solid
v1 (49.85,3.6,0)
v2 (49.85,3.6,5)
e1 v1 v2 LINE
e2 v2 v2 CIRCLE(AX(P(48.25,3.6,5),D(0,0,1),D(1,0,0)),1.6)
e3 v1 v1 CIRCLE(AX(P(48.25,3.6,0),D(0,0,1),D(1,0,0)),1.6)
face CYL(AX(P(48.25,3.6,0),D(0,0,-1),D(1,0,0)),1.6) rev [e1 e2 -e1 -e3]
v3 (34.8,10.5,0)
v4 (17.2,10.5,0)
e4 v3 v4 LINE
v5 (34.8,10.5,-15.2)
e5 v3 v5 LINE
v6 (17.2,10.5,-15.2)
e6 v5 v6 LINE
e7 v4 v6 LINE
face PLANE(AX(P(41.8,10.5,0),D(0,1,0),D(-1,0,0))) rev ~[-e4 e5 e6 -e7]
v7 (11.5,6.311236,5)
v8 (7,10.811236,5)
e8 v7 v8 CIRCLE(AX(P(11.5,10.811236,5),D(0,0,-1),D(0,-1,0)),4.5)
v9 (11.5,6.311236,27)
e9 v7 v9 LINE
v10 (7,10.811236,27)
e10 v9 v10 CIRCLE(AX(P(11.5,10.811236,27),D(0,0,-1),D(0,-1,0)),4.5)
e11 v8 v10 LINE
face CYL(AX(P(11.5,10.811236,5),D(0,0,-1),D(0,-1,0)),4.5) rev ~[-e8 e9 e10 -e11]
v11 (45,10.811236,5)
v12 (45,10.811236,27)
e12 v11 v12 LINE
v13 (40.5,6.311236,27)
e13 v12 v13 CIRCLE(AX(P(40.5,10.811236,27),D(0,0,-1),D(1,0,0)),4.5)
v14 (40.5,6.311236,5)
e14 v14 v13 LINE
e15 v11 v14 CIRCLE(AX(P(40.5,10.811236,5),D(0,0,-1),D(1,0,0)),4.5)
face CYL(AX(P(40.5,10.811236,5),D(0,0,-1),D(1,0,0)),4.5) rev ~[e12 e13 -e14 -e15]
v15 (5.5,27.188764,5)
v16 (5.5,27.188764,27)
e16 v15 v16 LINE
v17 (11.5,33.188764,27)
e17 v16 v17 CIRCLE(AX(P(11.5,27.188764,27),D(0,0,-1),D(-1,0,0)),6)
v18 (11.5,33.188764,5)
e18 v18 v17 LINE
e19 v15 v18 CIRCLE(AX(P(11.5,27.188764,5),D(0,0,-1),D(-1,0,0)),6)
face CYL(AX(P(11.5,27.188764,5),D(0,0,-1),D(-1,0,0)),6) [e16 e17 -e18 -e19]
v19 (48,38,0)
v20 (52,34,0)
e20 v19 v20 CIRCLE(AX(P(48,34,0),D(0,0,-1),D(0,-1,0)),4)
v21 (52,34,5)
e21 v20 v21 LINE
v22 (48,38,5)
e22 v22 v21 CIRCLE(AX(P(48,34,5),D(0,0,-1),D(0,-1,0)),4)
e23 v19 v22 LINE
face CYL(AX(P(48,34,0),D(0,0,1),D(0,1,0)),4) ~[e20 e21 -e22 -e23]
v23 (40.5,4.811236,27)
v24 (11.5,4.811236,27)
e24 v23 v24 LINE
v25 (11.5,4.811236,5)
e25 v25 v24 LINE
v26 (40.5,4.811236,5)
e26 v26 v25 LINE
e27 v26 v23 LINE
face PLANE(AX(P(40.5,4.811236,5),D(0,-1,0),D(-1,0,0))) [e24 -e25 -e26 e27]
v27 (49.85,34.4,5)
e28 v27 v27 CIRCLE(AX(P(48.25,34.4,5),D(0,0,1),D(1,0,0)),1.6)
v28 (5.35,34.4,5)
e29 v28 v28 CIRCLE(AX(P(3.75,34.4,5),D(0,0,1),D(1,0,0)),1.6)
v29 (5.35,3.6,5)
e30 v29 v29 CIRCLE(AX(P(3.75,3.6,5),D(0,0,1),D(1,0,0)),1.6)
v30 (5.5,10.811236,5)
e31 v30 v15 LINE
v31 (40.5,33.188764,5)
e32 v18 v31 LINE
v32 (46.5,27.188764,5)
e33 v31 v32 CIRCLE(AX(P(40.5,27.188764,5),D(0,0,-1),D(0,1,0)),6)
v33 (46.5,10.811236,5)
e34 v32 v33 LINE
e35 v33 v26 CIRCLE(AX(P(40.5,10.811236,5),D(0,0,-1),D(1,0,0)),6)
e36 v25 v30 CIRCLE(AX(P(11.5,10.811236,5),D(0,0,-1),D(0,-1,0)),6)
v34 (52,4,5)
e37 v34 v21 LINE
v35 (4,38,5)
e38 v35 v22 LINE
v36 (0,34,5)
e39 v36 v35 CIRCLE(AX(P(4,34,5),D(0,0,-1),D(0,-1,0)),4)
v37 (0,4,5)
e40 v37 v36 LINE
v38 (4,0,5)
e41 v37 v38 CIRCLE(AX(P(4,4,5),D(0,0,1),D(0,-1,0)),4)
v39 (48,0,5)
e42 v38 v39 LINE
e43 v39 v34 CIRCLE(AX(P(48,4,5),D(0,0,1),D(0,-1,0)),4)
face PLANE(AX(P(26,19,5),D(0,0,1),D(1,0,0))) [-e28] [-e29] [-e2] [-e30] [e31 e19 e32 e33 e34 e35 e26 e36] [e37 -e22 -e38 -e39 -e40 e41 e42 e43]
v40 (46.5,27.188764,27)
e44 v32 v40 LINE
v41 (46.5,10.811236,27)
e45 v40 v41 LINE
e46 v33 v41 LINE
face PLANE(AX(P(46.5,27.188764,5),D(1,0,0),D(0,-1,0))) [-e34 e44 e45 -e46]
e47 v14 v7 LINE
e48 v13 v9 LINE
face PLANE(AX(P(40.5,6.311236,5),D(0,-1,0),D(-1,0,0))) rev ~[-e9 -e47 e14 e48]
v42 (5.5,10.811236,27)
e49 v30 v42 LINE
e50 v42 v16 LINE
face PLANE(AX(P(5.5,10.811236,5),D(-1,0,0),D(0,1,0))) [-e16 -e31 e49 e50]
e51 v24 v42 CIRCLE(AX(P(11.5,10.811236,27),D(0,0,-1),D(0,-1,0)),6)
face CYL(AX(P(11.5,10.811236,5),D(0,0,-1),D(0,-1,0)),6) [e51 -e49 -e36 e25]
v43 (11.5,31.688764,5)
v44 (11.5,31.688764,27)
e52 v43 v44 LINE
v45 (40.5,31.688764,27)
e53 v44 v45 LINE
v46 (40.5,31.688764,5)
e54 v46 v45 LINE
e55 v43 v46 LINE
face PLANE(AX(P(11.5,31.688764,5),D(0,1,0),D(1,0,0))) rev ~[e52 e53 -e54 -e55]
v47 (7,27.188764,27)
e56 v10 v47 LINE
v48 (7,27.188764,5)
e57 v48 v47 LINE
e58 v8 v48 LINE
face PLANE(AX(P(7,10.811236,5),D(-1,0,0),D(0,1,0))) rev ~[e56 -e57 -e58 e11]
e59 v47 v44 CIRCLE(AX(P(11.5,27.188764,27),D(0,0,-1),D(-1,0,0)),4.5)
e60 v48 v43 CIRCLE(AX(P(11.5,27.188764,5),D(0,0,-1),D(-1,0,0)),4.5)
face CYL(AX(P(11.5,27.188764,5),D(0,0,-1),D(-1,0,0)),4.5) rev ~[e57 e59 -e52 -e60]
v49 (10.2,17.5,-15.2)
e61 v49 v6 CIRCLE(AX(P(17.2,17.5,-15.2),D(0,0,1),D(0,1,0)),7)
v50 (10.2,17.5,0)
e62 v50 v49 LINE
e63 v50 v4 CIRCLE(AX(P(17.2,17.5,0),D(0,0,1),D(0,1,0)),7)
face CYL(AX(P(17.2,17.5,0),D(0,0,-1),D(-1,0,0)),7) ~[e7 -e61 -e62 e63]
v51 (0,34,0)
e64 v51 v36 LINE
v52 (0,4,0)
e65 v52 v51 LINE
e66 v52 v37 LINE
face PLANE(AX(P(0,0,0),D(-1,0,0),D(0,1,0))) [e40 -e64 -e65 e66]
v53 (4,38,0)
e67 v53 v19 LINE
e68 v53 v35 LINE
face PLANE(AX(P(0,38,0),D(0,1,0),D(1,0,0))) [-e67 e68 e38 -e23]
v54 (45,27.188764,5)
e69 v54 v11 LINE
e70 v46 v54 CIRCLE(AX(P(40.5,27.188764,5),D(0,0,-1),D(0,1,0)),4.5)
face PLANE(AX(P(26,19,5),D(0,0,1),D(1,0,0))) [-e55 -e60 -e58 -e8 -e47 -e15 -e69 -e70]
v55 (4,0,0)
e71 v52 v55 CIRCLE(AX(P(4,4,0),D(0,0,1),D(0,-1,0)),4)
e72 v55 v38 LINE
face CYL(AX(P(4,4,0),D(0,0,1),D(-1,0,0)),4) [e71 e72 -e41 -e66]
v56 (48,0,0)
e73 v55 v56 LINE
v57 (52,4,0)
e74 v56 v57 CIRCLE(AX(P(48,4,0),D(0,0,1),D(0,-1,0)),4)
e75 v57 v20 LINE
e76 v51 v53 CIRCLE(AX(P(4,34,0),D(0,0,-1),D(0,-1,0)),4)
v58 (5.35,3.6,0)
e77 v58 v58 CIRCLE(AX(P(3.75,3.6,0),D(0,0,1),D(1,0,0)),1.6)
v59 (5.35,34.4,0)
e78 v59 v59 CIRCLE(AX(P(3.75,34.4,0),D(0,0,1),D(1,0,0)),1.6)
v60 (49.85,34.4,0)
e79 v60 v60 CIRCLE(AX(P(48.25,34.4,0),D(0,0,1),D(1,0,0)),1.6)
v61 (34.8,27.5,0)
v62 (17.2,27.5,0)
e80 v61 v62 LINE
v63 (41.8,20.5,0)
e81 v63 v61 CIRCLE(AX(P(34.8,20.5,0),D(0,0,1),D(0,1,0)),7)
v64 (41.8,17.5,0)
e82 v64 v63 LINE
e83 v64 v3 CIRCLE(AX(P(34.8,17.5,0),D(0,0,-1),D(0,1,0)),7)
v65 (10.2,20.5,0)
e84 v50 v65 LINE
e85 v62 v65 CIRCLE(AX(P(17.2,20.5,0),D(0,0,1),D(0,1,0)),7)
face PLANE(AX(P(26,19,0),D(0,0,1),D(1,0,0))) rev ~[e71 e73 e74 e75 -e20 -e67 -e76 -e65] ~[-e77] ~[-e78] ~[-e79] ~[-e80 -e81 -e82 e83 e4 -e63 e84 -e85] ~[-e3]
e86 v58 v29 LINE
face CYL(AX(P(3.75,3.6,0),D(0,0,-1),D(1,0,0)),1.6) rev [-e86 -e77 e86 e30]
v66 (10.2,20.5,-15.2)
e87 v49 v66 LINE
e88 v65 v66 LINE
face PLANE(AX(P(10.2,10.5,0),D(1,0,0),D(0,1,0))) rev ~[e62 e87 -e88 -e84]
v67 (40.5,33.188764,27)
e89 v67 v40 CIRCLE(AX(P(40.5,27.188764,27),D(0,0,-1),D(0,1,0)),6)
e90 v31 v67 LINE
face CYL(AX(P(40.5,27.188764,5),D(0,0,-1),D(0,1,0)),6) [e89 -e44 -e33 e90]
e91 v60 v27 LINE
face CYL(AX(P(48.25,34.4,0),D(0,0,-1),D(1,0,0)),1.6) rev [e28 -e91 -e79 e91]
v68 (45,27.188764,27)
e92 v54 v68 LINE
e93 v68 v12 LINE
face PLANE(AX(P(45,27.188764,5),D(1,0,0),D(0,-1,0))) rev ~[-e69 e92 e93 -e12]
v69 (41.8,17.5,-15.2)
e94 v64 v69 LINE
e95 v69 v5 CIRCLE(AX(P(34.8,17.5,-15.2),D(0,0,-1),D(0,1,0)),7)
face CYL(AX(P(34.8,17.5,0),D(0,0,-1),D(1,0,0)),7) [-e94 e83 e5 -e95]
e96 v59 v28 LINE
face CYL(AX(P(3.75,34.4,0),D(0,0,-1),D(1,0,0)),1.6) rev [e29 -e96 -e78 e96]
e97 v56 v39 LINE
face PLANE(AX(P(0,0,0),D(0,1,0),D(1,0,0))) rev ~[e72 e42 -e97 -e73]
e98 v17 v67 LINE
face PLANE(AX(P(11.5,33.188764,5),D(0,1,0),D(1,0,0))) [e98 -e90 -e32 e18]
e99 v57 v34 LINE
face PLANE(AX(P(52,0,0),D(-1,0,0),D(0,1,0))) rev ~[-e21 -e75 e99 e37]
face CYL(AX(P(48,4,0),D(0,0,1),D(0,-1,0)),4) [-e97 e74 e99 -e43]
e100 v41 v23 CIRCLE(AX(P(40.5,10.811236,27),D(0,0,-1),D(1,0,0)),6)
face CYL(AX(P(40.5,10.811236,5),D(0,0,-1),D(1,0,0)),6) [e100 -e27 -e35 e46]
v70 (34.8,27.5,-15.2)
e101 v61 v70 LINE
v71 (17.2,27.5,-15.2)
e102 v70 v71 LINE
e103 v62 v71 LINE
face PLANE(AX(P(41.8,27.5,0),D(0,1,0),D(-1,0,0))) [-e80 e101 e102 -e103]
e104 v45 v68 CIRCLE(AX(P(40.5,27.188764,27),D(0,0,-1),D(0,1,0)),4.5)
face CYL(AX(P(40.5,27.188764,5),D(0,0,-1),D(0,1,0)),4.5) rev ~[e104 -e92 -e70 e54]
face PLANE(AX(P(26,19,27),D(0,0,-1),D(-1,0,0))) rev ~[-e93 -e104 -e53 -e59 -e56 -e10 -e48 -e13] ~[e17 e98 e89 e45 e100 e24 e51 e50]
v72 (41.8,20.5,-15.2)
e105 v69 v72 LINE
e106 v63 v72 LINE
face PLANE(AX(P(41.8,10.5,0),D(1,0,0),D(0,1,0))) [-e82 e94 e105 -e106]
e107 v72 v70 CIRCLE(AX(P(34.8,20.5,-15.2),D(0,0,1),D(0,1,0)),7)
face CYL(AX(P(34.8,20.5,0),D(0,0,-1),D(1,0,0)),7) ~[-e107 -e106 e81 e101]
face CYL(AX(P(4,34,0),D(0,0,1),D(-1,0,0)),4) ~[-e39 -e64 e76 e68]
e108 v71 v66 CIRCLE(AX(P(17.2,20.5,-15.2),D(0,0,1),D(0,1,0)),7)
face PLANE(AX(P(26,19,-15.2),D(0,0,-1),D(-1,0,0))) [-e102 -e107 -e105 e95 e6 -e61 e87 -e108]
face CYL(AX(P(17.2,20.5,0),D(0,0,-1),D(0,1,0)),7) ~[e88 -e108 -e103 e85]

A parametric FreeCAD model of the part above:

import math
import FreeCAD as App
import Part
import Sketcher


def edges_at(feature, points):
    """Names of the edges that pass closest to the given points."""
    edges = feature.Shape.Edges
    near = lambda p: min(range(len(edges)), key=lambda i: edges[i].distToShape(Part.Vertex(*p))[0])
    return sorted({f"Edge{near(p) + 1}" for p in points})

doc = App.newDocument("Part")
body = doc.addObject("PartDesign::Body", "Body")

# Sketch on XY plane
sketch1 = body.newObject("Sketcher::SketchObject", "Sketch")
sketch1.AttachmentSupport = (doc.getObject("XY_Plane"), [""])
sketch1.MapMode = "FlatFace"
sketch1.addGeometry([
    Part.LineSegment(App.Vector(0, 38, 0), App.Vector(0, 0, 0)),  # 0
    Part.LineSegment(App.Vector(0, 0, 0), App.Vector(52, 0, 0)),  # 1
    Part.LineSegment(App.Vector(52, 0, 0), App.Vector(52, 38, 0)),  # 2
    Part.LineSegment(App.Vector(52, 38, 0), App.Vector(0, 38, 0)),  # 3
    Part.Circle(App.Vector(3.8, 3.6, 0), App.Vector(0, 0, 1), 1.6),  # 4
    Part.Circle(App.Vector(48.2, 3.6, 0), App.Vector(0, 0, 1), 1.6),  # 5
    Part.Circle(App.Vector(3.8, 34.4, 0), App.Vector(0, 0, 1), 1.6),  # 6
    Part.Circle(App.Vector(48.2, 34.4, 0), App.Vector(0, 0, 1), 1.6),  # 7
], False)
sketch1.addConstraint([
    Sketcher.Constraint("Coincident", 0, 2, 1, 1),
    Sketcher.Constraint("Coincident", 1, 2, 2, 1),
    Sketcher.Constraint("Coincident", 2, 2, 3, 1),
    Sketcher.Constraint("Coincident", 3, 2, 0, 1),
    Sketcher.Constraint("Vertical", 0),
    Sketcher.Constraint("Horizontal", 1),
    Sketcher.Constraint("Vertical", 2),
    Sketcher.Constraint("Horizontal", 3),
    Sketcher.Constraint("Coincident", 0, 2, -1, 1),
    Sketcher.Constraint("Equal", 4, 5),
    Sketcher.Constraint("Equal", 5, 6),
    Sketcher.Constraint("Equal", 6, 7),
    Sketcher.Constraint("Horizontal", 4, 3, 5, 3),
    Sketcher.Constraint("Horizontal", 6, 3, 7, 3),
    Sketcher.Constraint("Vertical", 4, 3, 6, 3),
    Sketcher.Constraint("Vertical", 5, 3, 7, 3),
    Sketcher.Constraint("Diameter", 4, 3.2),
    Sketcher.Constraint("DistanceX", 1, 1, 1, 2, 52.0),
    Sketcher.Constraint("DistanceY", 0, 2, 0, 1, 38.0),
    Sketcher.Constraint("DistanceY", -1, 1, 4, 3, 3.6),
    Sketcher.Constraint("DistanceY", -1, 1, 6, 3, 34.4),
    Sketcher.Constraint("DistanceX", 4, 3, 5, 3, 44.5),
    Sketcher.Constraint("DistanceX", -1, 1, 4, 3, 3.75),
])
pad1 = body.newObject("PartDesign::Pad", "Pad")
pad1.Profile = sketch1
pad1.Length = 5

# Sketch on XY plane
sketch2 = body.newObject("Sketcher::SketchObject", "Sketch001")
sketch2.AttachmentSupport = (doc.getObject("XY_Plane"), [""])
sketch2.MapMode = "FlatFace"
sketch2.addGeometry([
    Part.LineSegment(App.Vector(42, 28, 0), App.Vector(42, 10, 0)),
    Part.LineSegment(App.Vector(42, 10, 0), App.Vector(10, 10, 0)),
    Part.LineSegment(App.Vector(10, 10, 0), App.Vector(10, 28, 0)),
    Part.LineSegment(App.Vector(10, 28, 0), App.Vector(42, 28, 0)),
], False)
sketch2.addConstraint([
    Sketcher.Constraint("Coincident", 0, 2, 1, 1),
    Sketcher.Constraint("Coincident", 1, 2, 2, 1),
    Sketcher.Constraint("Coincident", 2, 2, 3, 1),
    Sketcher.Constraint("Coincident", 3, 2, 0, 1),
    Sketcher.Constraint("Vertical", 0),
    Sketcher.Constraint("Horizontal", 1),
    Sketcher.Constraint("Vertical", 2),
    Sketcher.Constraint("Horizontal", 3),
    Sketcher.Constraint("DistanceY", 0, 2, 0, 1, 17.0),
    Sketcher.Constraint("DistanceX", 1, 2, 1, 1, 31.6),
    Sketcher.Constraint("DistanceX", -1, 1, 0, 2, 41.8),
    Sketcher.Constraint("DistanceY", -1, 1, 0, 2, 10.5),
])
pad2 = body.newObject("PartDesign::Pad", "Pad001")
pad2.Profile = sketch2
pad2.Length = 15.2
pad2.Reversed = True

# Sketch on XY plane
sketch3 = body.newObject("Sketcher::SketchObject", "Sketch002")
sketch3.AttachmentSupport = (doc.getObject("XY_Plane"), [""])
sketch3.MapMode = "FlatFace"
sketch3.AttachmentOffset = App.Placement(App.Vector(0, 0, 5), App.Rotation())
sketch3.addGeometry([
    Part.LineSegment(App.Vector(40.5, 33.2, 0), App.Vector(11.5, 33.2, 0)),  # 0
    Part.ArcOfCircle(Part.Circle(App.Vector(11.5, 27.2, 0), App.Vector(0, 0, 1), 6), math.radians(90), math.radians(180)),  # 1
    Part.LineSegment(App.Vector(5.5, 27.2, 0), App.Vector(5.5, 10.8, 0)),  # 2
    Part.ArcOfCircle(Part.Circle(App.Vector(11.5, 10.8, 0), App.Vector(0, 0, 1), 6), math.radians(180), math.radians(270)),  # 3
    Part.LineSegment(App.Vector(11.5, 4.8, 0), App.Vector(40.5, 4.8, 0)),  # 4
    Part.ArcOfCircle(Part.Circle(App.Vector(40.5, 10.8, 0), App.Vector(0, 0, 1), 6), math.radians(-90), math.radians(0)),  # 5
    Part.LineSegment(App.Vector(46.5, 10.8, 0), App.Vector(46.5, 27.2, 0)),  # 6
    Part.ArcOfCircle(Part.Circle(App.Vector(40.5, 27.2, 0), App.Vector(0, 0, 1), 6), math.radians(0), math.radians(90)),  # 7
    Part.LineSegment(App.Vector(11.5, 31.7, 0), App.Vector(40.5, 31.7, 0)),  # 8
    Part.ArcOfCircle(Part.Circle(App.Vector(40.5, 27.2, 0), App.Vector(0, 0, 1), 4.5), math.radians(0), math.radians(90)),  # 9
    Part.LineSegment(App.Vector(45, 27.2, 0), App.Vector(45, 10.8, 0)),  # 10
    Part.ArcOfCircle(Part.Circle(App.Vector(40.5, 10.8, 0), App.Vector(0, 0, 1), 4.5), math.radians(-90), math.radians(0)),  # 11
    Part.LineSegment(App.Vector(40.5, 6.3, 0), App.Vector(11.5, 6.3, 0)),  # 12
    Part.ArcOfCircle(Part.Circle(App.Vector(11.5, 10.8, 0), App.Vector(0, 0, 1), 4.5), math.radians(-180), math.radians(-90)),  # 13
    Part.LineSegment(App.Vector(7, 10.8, 0), App.Vector(7, 27.2, 0)),  # 14
    Part.ArcOfCircle(Part.Circle(App.Vector(11.5, 27.2, 0), App.Vector(0, 0, 1), 4.5), math.radians(90), math.radians(180)),  # 15
], False)
sketch3.addConstraint([
    Sketcher.Constraint("Tangent", 0, 2, 1, 1),
    Sketcher.Constraint("Tangent", 1, 2, 2, 1),
    Sketcher.Constraint("Tangent", 2, 2, 3, 1),
    Sketcher.Constraint("Tangent", 3, 2, 4, 1),
    Sketcher.Constraint("Tangent", 4, 2, 5, 1),
    Sketcher.Constraint("Tangent", 5, 2, 6, 1),
    Sketcher.Constraint("Tangent", 6, 2, 7, 1),
    Sketcher.Constraint("Tangent", 7, 2, 0, 1),
    Sketcher.Constraint("Tangent", 8, 2, 9, 2),
    Sketcher.Constraint("Tangent", 9, 1, 10, 1),
    Sketcher.Constraint("Tangent", 10, 2, 11, 2),
    Sketcher.Constraint("Tangent", 11, 1, 12, 1),
    Sketcher.Constraint("Tangent", 12, 2, 13, 2),
    Sketcher.Constraint("Tangent", 13, 1, 14, 1),
    Sketcher.Constraint("Tangent", 14, 2, 15, 2),
    Sketcher.Constraint("Tangent", 15, 1, 8, 1),
    Sketcher.Constraint("Horizontal", 0),
    Sketcher.Constraint("Vertical", 2),
    Sketcher.Constraint("Horizontal", 4),
    Sketcher.Constraint("Vertical", 6),
    Sketcher.Constraint("Horizontal", 8),
    Sketcher.Constraint("Vertical", 10),
    Sketcher.Constraint("Horizontal", 12),
    Sketcher.Constraint("Vertical", 14),
    Sketcher.Constraint("Coincident", 9, 3, 7, 3),
    Sketcher.Constraint("Coincident", 11, 3, 5, 3),
    Sketcher.Constraint("Coincident", 13, 3, 3, 3),
    Sketcher.Constraint("Equal", 1, 3),
    Sketcher.Constraint("Equal", 3, 5),
    Sketcher.Constraint("Equal", 5, 7),
    Sketcher.Constraint("Equal", 13, 15),
    Sketcher.Constraint("Radius", 1, 6.0),
    Sketcher.Constraint("Radius", 9, 4.5),
    Sketcher.Constraint("DistanceX", 0, 2, 0, 1, 29.0),
    Sketcher.Constraint("DistanceX", -1, 1, 9, 1, 45.0),
    Sketcher.Constraint("DistanceY", 2, 2, 2, 1, 16.377528),
    Sketcher.Constraint("DistanceY", -1, 1, 1, 3, 27.188764),
])
pad3 = body.newObject("PartDesign::Pad", "Pad002")
pad3.Profile = sketch3
pad3.Length = 22
doc.recompute()

fillet = body.newObject("PartDesign::Fillet", "Fillet")
fillet.Base = (pad3, edges_at(pad3, [
    (0, 0, 2.5),
    (0, 38, 2.5),
    (52, 38, 2.5),
    (52, 0, 2.5),
]))
fillet.Radius = 4
doc.recompute()

fillet2 = body.newObject("PartDesign::Fillet", "Fillet001")
fillet2.Base = (fillet, edges_at(fillet, [
    (41.8, 27.5, -7.6),
    (41.8, 10.5, -7.6),
    (10.2, 10.5, -7.6),
    (10.2, 27.5, -7.6),
]))
fillet2.Radius = 7

doc.recompute()
